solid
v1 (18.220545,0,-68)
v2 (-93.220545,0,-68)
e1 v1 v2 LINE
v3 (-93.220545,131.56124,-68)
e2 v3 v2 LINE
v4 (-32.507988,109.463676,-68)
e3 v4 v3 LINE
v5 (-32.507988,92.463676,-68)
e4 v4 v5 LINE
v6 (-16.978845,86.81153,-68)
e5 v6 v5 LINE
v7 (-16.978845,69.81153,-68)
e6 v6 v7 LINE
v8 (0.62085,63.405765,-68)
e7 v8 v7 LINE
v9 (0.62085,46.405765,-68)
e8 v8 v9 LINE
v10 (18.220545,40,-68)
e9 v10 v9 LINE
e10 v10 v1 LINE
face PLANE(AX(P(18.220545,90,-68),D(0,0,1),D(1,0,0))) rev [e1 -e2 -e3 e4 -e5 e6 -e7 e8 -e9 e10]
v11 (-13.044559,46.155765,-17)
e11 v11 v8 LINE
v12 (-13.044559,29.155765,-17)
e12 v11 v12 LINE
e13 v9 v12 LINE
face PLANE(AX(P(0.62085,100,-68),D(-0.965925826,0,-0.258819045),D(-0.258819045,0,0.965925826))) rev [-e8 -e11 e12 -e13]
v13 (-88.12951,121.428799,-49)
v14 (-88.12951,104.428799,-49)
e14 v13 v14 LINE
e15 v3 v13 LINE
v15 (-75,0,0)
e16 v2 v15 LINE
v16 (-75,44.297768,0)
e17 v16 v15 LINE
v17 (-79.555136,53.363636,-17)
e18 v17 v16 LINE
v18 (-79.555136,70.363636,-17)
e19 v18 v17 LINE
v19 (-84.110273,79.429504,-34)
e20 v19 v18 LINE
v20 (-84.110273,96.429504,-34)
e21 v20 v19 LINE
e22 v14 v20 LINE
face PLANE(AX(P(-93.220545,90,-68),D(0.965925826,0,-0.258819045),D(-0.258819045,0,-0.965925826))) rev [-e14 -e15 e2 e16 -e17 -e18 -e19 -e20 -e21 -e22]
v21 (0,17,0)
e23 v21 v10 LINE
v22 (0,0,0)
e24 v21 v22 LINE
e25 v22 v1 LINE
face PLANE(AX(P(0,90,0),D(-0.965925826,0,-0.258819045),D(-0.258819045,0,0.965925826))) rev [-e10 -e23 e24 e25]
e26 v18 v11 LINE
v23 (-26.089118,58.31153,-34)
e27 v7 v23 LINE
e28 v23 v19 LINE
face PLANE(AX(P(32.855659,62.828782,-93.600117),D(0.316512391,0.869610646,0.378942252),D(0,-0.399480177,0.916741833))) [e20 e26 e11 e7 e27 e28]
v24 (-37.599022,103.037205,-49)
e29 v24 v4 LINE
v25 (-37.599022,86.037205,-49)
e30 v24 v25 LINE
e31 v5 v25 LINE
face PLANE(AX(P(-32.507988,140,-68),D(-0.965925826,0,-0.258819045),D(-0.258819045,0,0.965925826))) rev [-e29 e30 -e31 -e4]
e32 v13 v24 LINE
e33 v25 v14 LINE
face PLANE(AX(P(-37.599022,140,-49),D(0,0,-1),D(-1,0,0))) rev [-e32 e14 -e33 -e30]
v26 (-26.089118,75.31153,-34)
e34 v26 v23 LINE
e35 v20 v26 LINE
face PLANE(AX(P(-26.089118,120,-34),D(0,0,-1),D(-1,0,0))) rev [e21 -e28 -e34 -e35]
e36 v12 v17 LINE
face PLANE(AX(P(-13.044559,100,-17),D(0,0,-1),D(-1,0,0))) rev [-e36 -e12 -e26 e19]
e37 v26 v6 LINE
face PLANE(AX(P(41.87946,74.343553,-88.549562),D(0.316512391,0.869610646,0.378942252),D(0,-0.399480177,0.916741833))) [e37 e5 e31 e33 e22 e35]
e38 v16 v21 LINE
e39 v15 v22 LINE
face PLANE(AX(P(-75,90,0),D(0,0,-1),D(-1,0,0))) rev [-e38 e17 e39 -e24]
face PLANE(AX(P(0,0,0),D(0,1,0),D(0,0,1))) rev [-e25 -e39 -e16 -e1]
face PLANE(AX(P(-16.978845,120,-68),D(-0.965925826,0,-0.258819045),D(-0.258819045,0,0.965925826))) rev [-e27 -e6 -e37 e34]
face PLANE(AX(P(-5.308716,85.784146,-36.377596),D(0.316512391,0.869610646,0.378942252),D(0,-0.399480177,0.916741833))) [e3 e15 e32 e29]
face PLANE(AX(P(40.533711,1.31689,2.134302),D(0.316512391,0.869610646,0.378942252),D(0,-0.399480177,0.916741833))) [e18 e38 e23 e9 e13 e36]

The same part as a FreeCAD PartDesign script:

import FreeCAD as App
import Part
import Sketcher
Q = App.Units.Quantity

doc = App.newDocument("Part")
params = doc.addObject("Spreadsheet::Sheet", "Params")
for row, (alias, value) in enumerate([
    ("sketch1_width", "75 mm"),
    ("pad1_length", "90 mm"),
    ("sketch2_height", "50 mm"),
    ("pocket2_length", "30 mm"),
    ("pad2_length", "100 mm"),
    ("pocket4_length", "20 mm"),
    ("pad3_length", "120 mm"),
    ("pocket6_length", "20 mm"),
    ("pad4_length", "140 mm"),
    ("pocket8_length", "10 mm"),
], start=1):
    params.set(f"A{row}", alias)
    params.set(f"B{row}", "=" + value)
    params.setAlias(f"B{row}", alias)

body = doc.addObject("PartDesign::Body", "Body")

# Sketch on XZ plane
sketch1 = body.newObject("Sketcher::SketchObject", "Sketch")
sketch1.AttachmentSupport = (doc.getObject("XZ_Plane"), [""])
sketch1.MapMode = "FlatFace"
sketch1.addGeometry([
    Part.LineSegment(App.Vector(0, 0, 0), App.Vector(18, -68, 0)),
    Part.LineSegment(App.Vector(18, -68, 0), App.Vector(-93, -68, 0)),
    Part.LineSegment(App.Vector(-93, -68, 0), App.Vector(-75, 0, 0)),
    Part.LineSegment(App.Vector(-75, 0, 0), App.Vector(0, 0, 0)),
], False)
sketch1.addConstraint([
    Sketcher.Constraint("Coincident", 0, 2, 1, 1),
    Sketcher.Constraint("Coincident", 1, 2, 2, 1),
    Sketcher.Constraint("Coincident", 2, 2, 3, 1),
    Sketcher.Constraint("Coincident", 3, 2, 0, 1),
    Sketcher.Constraint("Horizontal", 1),
    Sketcher.Constraint("Horizontal", 3),
    Sketcher.Constraint("Coincident", 3, 2, -1, 1),
    Sketcher.Constraint("Equal", 0, 2),
    Sketcher.Constraint("DistanceX", 3, 1, 3, 2, 75.0),
    Sketcher.Constraint("Angle", 0, Q("-75 deg")),
    Sketcher.Constraint("DistanceY", 0, 2, -1, 1, 68.0),
])
sketch1.setExpression("Constraints[8]", "Params.sketch1_width")
pad1 = body.newObject("PartDesign::Pad", "Pad")
pad1.Profile = sketch1
pad1.setExpression("Length", "Params.pad1_length")
pad1.Reversed = True

# Sketch on XY plane
sketch2 = body.newObject("Sketcher::SketchObject", "Sketch001")
sketch2.AttachmentSupport = (doc.getObject("XY_Plane"), [""])
sketch2.MapMode = "FlatFace"
sketch2.AttachmentOffset = App.Placement(App.Vector(0, 0, -68), App.Rotation())
sketch2.addGeometry([
    Part.LineSegment(App.Vector(18, 40, 0), App.Vector(-93, 81, 0)),
    Part.LineSegment(App.Vector(-93, 81, 0), App.Vector(-93, 90, 0)),
    Part.LineSegment(App.Vector(-93, 90, 0), App.Vector(18, 90, 0)),
    Part.LineSegment(App.Vector(18, 90, 0), App.Vector(18, 40, 0)),
], False)
sketch2.addConstraint([
    Sketcher.Constraint("Coincident", 0, 2, 1, 1),
    Sketcher.Constraint("Coincident", 1, 2, 2, 1),
    Sketcher.Constraint("Coincident", 2, 2, 3, 1),
    Sketcher.Constraint("Coincident", 3, 2, 0, 1),
    Sketcher.Constraint("Vertical", 1),
    Sketcher.Constraint("Horizontal", 2),
    Sketcher.Constraint("Vertical", 3),
    Sketcher.Constraint("DistanceY", 3, 2, 3, 1, 50.0),
    Sketcher.Constraint("Angle", 0, Q("160 deg")),
    Sketcher.Constraint("DistanceY", -1, 1, 1, 2, 90.0),
    Sketcher.Constraint("DistanceX", 2, 1, 2, 2, 111.44109),
    Sketcher.Constraint("DistanceX", 0, 2, -1, 1, 93.220545),
])
sketch2.setExpression("Constraints[7]", "Params.sketch2_height")
pocket1 = body.newObject("PartDesign::Pocket", "Pocket")
pocket1.Profile = sketch2
pocket1.Type = "ThroughAll"
pocket1.Reversed = True

# Sketch on an angled plane
sketch3 = body.newObject("Sketcher::SketchObject", "Sketch002")
sketch3.Placement = App.Placement(App.Vector(4.679123, 12.855785, 5.602048), App.Rotation(App.Vector(-0.948588376, 0.290160149, 0.126440426), App.Vector(0, -0.399480177, 0.916741833), App.Vector(0.316512391, 0.869610646, 0.378942252), "ZXY"))
sketch3.addGeometry([
    Part.LineSegment(App.Vector(-38, 1, 0), App.Vector(-38, -100, 0)),
    Part.LineSegment(App.Vector(-38, -100, 0), App.Vector(121, -100, 0)),
    Part.LineSegment(App.Vector(121, -100, 0), App.Vector(121, 1, 0)),
    Part.LineSegment(App.Vector(121, 1, 0), App.Vector(-38, 1, 0)),
], False)
sketch3.addConstraint([
    Sketcher.Constraint("Coincident", 0, 2, 1, 1),
    Sketcher.Constraint("Coincident", 1, 2, 2, 1),
    Sketcher.Constraint("Coincident", 2, 2, 3, 1),
    Sketcher.Constraint("Coincident", 3, 2, 0, 1),
    Sketcher.Constraint("Vertical", 0),
    Sketcher.Constraint("Horizontal", 1),
    Sketcher.Constraint("Vertical", 2),
    Sketcher.Constraint("Horizontal", 3),
    Sketcher.Constraint("DistanceY", 0, 2, 0, 1, 101.139552),
    Sketcher.Constraint("DistanceX", 1, 1, 1, 2, 158.762086),
    Sketcher.Constraint("DistanceY", 0, 2, -1, 1, 99.709019),
    Sketcher.Constraint("DistanceX", -1, 1, 1, 2, 120.96425),
])
pocket2 = body.newObject("PartDesign::Pocket", "Pocket001")
pocket2.Profile = sketch3
pocket2.setExpression("Length", "Params.pocket2_length")
pocket2.Reversed = True

# Sketch on XZ plane
sketch4 = body.newObject("Sketcher::SketchObject", "Sketch003")
sketch4.AttachmentSupport = (doc.getObject("XZ_Plane"), [""])
sketch4.MapMode = "FlatFace"
sketch4.addGeometry([
    Part.LineSegment(App.Vector(-13, -17, 0), App.Vector(1, -68, 0)),
    Part.LineSegment(App.Vector(1, -68, 0), App.Vector(-93, -68, 0)),
    Part.LineSegment(App.Vector(-93, -68, 0), App.Vector(-80, -17, 0)),
    Part.LineSegment(App.Vector(-80, -17, 0), App.Vector(-13, -17, 0)),
], False)
sketch4.addConstraint([
    Sketcher.Constraint("Coincident", 0, 2, 1, 1),
    Sketcher.Constraint("Coincident", 1, 2, 2, 1),
    Sketcher.Constraint("Coincident", 2, 2, 3, 1),
    Sketcher.Constraint("Coincident", 3, 2, 0, 1),
    Sketcher.Constraint("Horizontal", 1),
    Sketcher.Constraint("Horizontal", 3),
    Sketcher.Constraint("Equal", 0, 2),
    Sketcher.Constraint("Angle", 0, Q("-75 deg")),
    Sketcher.Constraint("DistanceY", 0, 2, -1, 1, 68.0),
    Sketcher.Constraint("DistanceY", 2, 2, -1, 1, 17.0),
    Sketcher.Constraint("DistanceX", 1, 2, 1, 1, 93.841395),
    Sketcher.Constraint("DistanceX", -1, 1, 0, 2, 0.62085),
])
pad2 = body.newObject("PartDesign::Pad", "Pad001")
pad2.Profile = sketch4
pad2.setExpression("Length", "Params.pad2_length")
pad2.Reversed = True

# Sketch on XY plane
sketch5 = body.newObject("Sketcher::SketchObject", "Sketch004")
sketch5.AttachmentSupport = (doc.getObject("XY_Plane"), [""])
sketch5.MapMode = "FlatFace"
sketch5.AttachmentOffset = App.Placement(App.Vector(0, 0, -68), App.Rotation())
sketch5.addGeometry([
    Part.LineSegment(App.Vector(0.6, 63.4, 0), App.Vector(-93.2, 97.6, 0)),
    Part.LineSegment(App.Vector(-93.2, 97.6, 0), App.Vector(-93.2, 100, 0)),
    Part.LineSegment(App.Vector(-93.2, 100, 0), App.Vector(0.6, 100, 0)),
    Part.LineSegment(App.Vector(0.6, 100, 0), App.Vector(0.6, 63.4, 0)),
], False)
sketch5.addConstraint([
    Sketcher.Constraint("Coincident", 0, 2, 1, 1),
    Sketcher.Constraint("Coincident", 1, 2, 2, 1),
    Sketcher.Constraint("Coincident", 2, 2, 3, 1),
    Sketcher.Constraint("Coincident", 3, 2, 0, 1),
    Sketcher.Constraint("Vertical", 1),
    Sketcher.Constraint("Horizontal", 2),
    Sketcher.Constraint("Vertical", 3),
    Sketcher.Constraint("Angle", 0, Q("160 deg")),
    Sketcher.Constraint("DistanceY", -1, 1, 1, 2, 100.0),
    Sketcher.Constraint("DistanceY", 1, 1, 1, 2, 2.43876),
    Sketcher.Constraint("DistanceX", 2, 1, 2, 2, 93.841395),
    Sketcher.Constraint("DistanceX", -1, 1, 2, 2, 0.62085),
])
pocket3 = body.newObject("PartDesign::Pocket", "Pocket002")
pocket3.Profile = sketch5
pocket3.Type = "ThroughAll"
pocket3.Reversed = True

# Sketch on an angled plane
sketch6 = body.newObject("Sketcher::SketchObject", "Sketch005")
sketch6.Placement = App.Placement(App.Vector(9.358247, 25.711571, 11.204095), App.Rotation(App.Vector(-0.948588376, 0.290160149, 0.126440426), App.Vector(0, -0.399480177, 0.916741833), App.Vector(0.316512391, 0.869610646, 0.378942252), "ZXY"))
sketch6.addGeometry([
    Part.LineSegment(App.Vector(-25, -21, 0), App.Vector(-25, -111, 0)),
    Part.LineSegment(App.Vector(-25, -111, 0), App.Vector(118, -111, 0)),
    Part.LineSegment(App.Vector(118, -111, 0), App.Vector(118, -21, 0)),
    Part.LineSegment(App.Vector(118, -21, 0), App.Vector(-25, -21, 0)),
], False)
sketch6.addConstraint([
    Sketcher.Constraint("Coincident", 0, 2, 1, 1),
    Sketcher.Constraint("Coincident", 1, 2, 2, 1),
    Sketcher.Constraint("Coincident", 2, 2, 3, 1),
    Sketcher.Constraint("Coincident", 3, 2, 0, 1),
    Sketcher.Constraint("Vertical", 0),
    Sketcher.Constraint("Horizontal", 1),
    Sketcher.Constraint("Vertical", 2),
    Sketcher.Constraint("Horizontal", 3),
    Sketcher.Constraint("DistanceX", 1, 1, 1, 2, 142.373578),
    Sketcher.Constraint("DistanceY", 0, 2, 0, 1, 89.670116),
    Sketcher.Constraint("DistanceX", -1, 1, 1, 2, 117.602651),
    Sketcher.Constraint("DistanceY", 2, 2, -1, 1, 21.23588),
])
pocket4 = body.newObject("PartDesign::Pocket", "Pocket003")
pocket4.Profile = sketch6
pocket4.setExpression("Length", "Params.pocket4_length")
pocket4.Reversed = True

# Sketch on XZ plane
sketch7 = body.newObject("Sketcher::SketchObject", "Sketch006")
sketch7.AttachmentSupport = (doc.getObject("XZ_Plane"), [""])
sketch7.MapMode = "FlatFace"
sketch7.addGeometry([
    Part.LineSegment(App.Vector(-26, -34, 0), App.Vector(-17, -68, 0)),
    Part.LineSegment(App.Vector(-17, -68, 0), App.Vector(-93, -68, 0)),
    Part.LineSegment(App.Vector(-93, -68, 0), App.Vector(-84, -34, 0)),
    Part.LineSegment(App.Vector(-84, -34, 0), App.Vector(-26, -34, 0)),
], False)
sketch7.addConstraint([
    Sketcher.Constraint("Coincident", 0, 2, 1, 1),
    Sketcher.Constraint("Coincident", 1, 2, 2, 1),
    Sketcher.Constraint("Coincident", 2, 2, 3, 1),
    Sketcher.Constraint("Coincident", 3, 2, 0, 1),
    Sketcher.Constraint("Horizontal", 1),
    Sketcher.Constraint("Horizontal", 3),
    Sketcher.Constraint("Equal", 0, 2),
    Sketcher.Constraint("Angle", 0, Q("-75 deg")),
    Sketcher.Constraint("DistanceY", 0, 2, -1, 1, 68.0),
    Sketcher.Constraint("DistanceY", 2, 2, -1, 1, 34.0),
    Sketcher.Constraint("DistanceX", 1, 2, 1, 1, 76.2417),
    Sketcher.Constraint("DistanceX", 0, 2, -1, 1, 16.978845),
])
pad3 = body.newObject("PartDesign::Pad", "Pad002")
pad3.Profile = sketch7
pad3.setExpression("Length", "Params.pad3_length")
pad3.Reversed = True

# Sketch on XY plane
sketch8 = body.newObject("Sketcher::SketchObject", "Sketch007")
sketch8.AttachmentSupport = (doc.getObject("XY_Plane"), [""])
sketch8.MapMode = "FlatFace"
sketch8.AttachmentOffset = App.Placement(App.Vector(0, 0, -68), App.Rotation())
sketch8.addGeometry([
    Part.LineSegment(App.Vector(-17, 87, 0), App.Vector(-93, 115, 0)),
    Part.LineSegment(App.Vector(-93, 115, 0), App.Vector(-93, 120, 0)),
    Part.LineSegment(App.Vector(-93, 120, 0), App.Vector(-17, 120, 0)),
    Part.LineSegment(App.Vector(-17, 120, 0), App.Vector(-17, 87, 0)),
], False)
sketch8.addConstraint([
    Sketcher.Constraint("Coincident", 0, 2, 1, 1),
    Sketcher.Constraint("Coincident", 1, 2, 2, 1),
    Sketcher.Constraint("Coincident", 2, 2, 3, 1),
    Sketcher.Constraint("Coincident", 3, 2, 0, 1),
    Sketcher.Constraint("Vertical", 1),
    Sketcher.Constraint("Horizontal", 2),
    Sketcher.Constraint("Vertical", 3),
    Sketcher.Constraint("Angle", 0, Q("160 deg")),
    Sketcher.Constraint("DistanceY", -1, 1, 1, 2, 120.0),
    Sketcher.Constraint("DistanceX", 2, 1, 2, 2, 76.2417),
    Sketcher.Constraint("DistanceY", 1, 1, 1, 2, 5.43876),
    Sketcher.Constraint("DistanceX", 0, 2, -1, 1, 93.220545),
])
pocket5 = body.newObject("PartDesign::Pocket", "Pocket004")
pocket5.Profile = sketch8
pocket5.Type = "ThroughAll"
pocket5.Reversed = True

# Sketch on an angled plane
sketch9 = body.newObject("Sketcher::SketchObject", "Sketch008")
sketch9.Placement = App.Placement(App.Vector(14.03737, 38.567356, 16.806143), App.Rotation(App.Vector(-0.948588376, 0.290160149, 0.126440426), App.Vector(0, -0.399480177, 0.916741833), App.Vector(0.316512391, 0.869610646, 0.378942252), "ZXY"))
sketch9.addGeometry([
    Part.LineSegment(App.Vector(-29, -22, 0), App.Vector(-29, -111, 0)),
    Part.LineSegment(App.Vector(-29, -111, 0), App.Vector(119, -111, 0)),
    Part.LineSegment(App.Vector(119, -111, 0), App.Vector(119, -22, 0)),
    Part.LineSegment(App.Vector(119, -22, 0), App.Vector(-29, -22, 0)),
], False)
sketch9.addConstraint([
    Sketcher.Constraint("Coincident", 0, 2, 1, 1),
    Sketcher.Constraint("Coincident", 1, 2, 2, 1),
    Sketcher.Constraint("Coincident", 2, 2, 3, 1),
    Sketcher.Constraint("Coincident", 3, 2, 0, 1),
    Sketcher.Constraint("Vertical", 0),
    Sketcher.Constraint("Horizontal", 1),
    Sketcher.Constraint("Vertical", 2),
    Sketcher.Constraint("Horizontal", 3),
    Sketcher.Constraint("DistanceX", 1, 1, 1, 2, 148.763156),
    Sketcher.Constraint("DistanceY", 0, 2, 0, 1, 89.075175),
    Sketcher.Constraint("DistanceX", -1, 1, 1, 2, 119.412079),
    Sketcher.Constraint("DistanceY", 2, 2, -1, 1, 21.800688),
])
pocket6 = body.newObject("PartDesign::Pocket", "Pocket005")
pocket6.Profile = sketch9
pocket6.setExpression("Length", "Params.pocket6_length")
pocket6.Reversed = True

# Sketch on XZ plane
sketch10 = body.newObject("Sketcher::SketchObject", "Sketch009")
sketch10.AttachmentSupport = (doc.getObject("XZ_Plane"), [""])
sketch10.MapMode = "FlatFace"
sketch10.addGeometry([
    Part.LineSegment(App.Vector(-33, -68, 0), App.Vector(-93, -68, 0)),
    Part.LineSegment(App.Vector(-93, -68, 0), App.Vector(-88, -49, 0)),
    Part.LineSegment(App.Vector(-88, -49, 0), App.Vector(-38, -49, 0)),
    Part.LineSegment(App.Vector(-38, -49, 0), App.Vector(-33, -68, 0)),
], False)
sketch10.addConstraint([
    Sketcher.Constraint("Coincident", 0, 2, 1, 1),
    Sketcher.Constraint("Coincident", 1, 2, 2, 1),
    Sketcher.Constraint("Coincident", 2, 2, 3, 1),
    Sketcher.Constraint("Coincident", 3, 2, 0, 1),
    Sketcher.Constraint("Horizontal", 0),
    Sketcher.Constraint("Horizontal", 2),
    Sketcher.Constraint("Equal", 1, 3),
    Sketcher.Constraint("Angle", 1, Q("75 deg")),
    Sketcher.Constraint("DistanceY", 0, 2, -1, 1, 68.0),
    Sketcher.Constraint("DistanceY", 1, 2, -1, 1, 49.0),
    Sketcher.Constraint("DistanceX", 2, 1, 2, 2, 50.530488),
    Sketcher.Constraint("DistanceX", 1, 2, -1, 1, 88.12951),
])
pad4 = body.newObject("PartDesign::Pad", "Pad003")
pad4.Profile = sketch10
pad4.setExpression("Length", "Params.pad4_length")
pad4.Reversed = True

# Sketch on XY plane
sketch11 = body.newObject("Sketcher::SketchObject", "Sketch010")
sketch11.AttachmentSupport = (doc.getObject("XY_Plane"), [""])
sketch11.MapMode = "FlatFace"
sketch11.AttachmentOffset = App.Placement(App.Vector(0, 0, -68), App.Rotation())
sketch11.addGeometry([
    Part.LineSegment(App.Vector(-33, 109, 0), App.Vector(-93, 132, 0)),
    Part.LineSegment(App.Vector(-93, 132, 0), App.Vector(-93, 140, 0)),
    Part.LineSegment(App.Vector(-93, 140, 0), App.Vector(-33, 140, 0)),
    Part.LineSegment(App.Vector(-33, 140, 0), App.Vector(-33, 109, 0)),
], False)
sketch11.addConstraint([
    Sketcher.Constraint("Coincident", 0, 2, 1, 1),
    Sketcher.Constraint("Coincident", 1, 2, 2, 1),
    Sketcher.Constraint("Coincident", 2, 2, 3, 1),
    Sketcher.Constraint("Coincident", 3, 2, 0, 1),
    Sketcher.Constraint("Vertical", 1),
    Sketcher.Constraint("Horizontal", 2),
    Sketcher.Constraint("Vertical", 3),
    Sketcher.Constraint("Angle", 0, Q("160 deg")),
    Sketcher.Constraint("DistanceY", -1, 1, 1, 2, 140.0),
    Sketcher.Constraint("DistanceY", 1, 1, 1, 2, 8.43876),
    Sketcher.Constraint("DistanceX", 2, 1, 2, 2, 60.712557),
    Sketcher.Constraint("DistanceX", 0, 2, -1, 1, 93.220545),
])
pocket7 = body.newObject("PartDesign::Pocket", "Pocket006")
pocket7.Profile = sketch11
pocket7.Type = "ThroughAll"
pocket7.Reversed = True

# Sketch on an angled plane
sketch12 = body.newObject("Sketcher::SketchObject", "Sketch011")
sketch12.Placement = App.Placement(App.Vector(18.716493, 51.423142, 22.408191), App.Rotation(App.Vector(-0.948588376, 0.290160149, 0.126440426), App.Vector(0, -0.399480177, 0.916741833), App.Vector(0.316512391, 0.869610646, 0.378942252), "ZXY"))
sketch12.addGeometry([
    Part.LineSegment(App.Vector(25, -68, 0), App.Vector(25, -120, 0)),
    Part.LineSegment(App.Vector(25, -120, 0), App.Vector(133, -120, 0)),
    Part.LineSegment(App.Vector(133, -120, 0), App.Vector(133, -68, 0)),
    Part.LineSegment(App.Vector(133, -68, 0), App.Vector(25, -68, 0)),
], False)
sketch12.addConstraint([
    Sketcher.Constraint("Coincident", 0, 2, 1, 1),
    Sketcher.Constraint("Coincident", 1, 2, 2, 1),
    Sketcher.Constraint("Coincident", 2, 2, 3, 1),
    Sketcher.Constraint("Coincident", 3, 2, 0, 1),
    Sketcher.Constraint("Vertical", 0),
    Sketcher.Constraint("Horizontal", 1),
    Sketcher.Constraint("Vertical", 2),
    Sketcher.Constraint("Horizontal", 3),
    Sketcher.Constraint("DistanceX", 1, 1, 1, 2, 108.093049),
    Sketcher.Constraint("DistanceY", 0, 2, 0, 1, 52.64069),
    Sketcher.Constraint("DistanceY", 0, 2, -1, 1, 120.25862),
    Sketcher.Constraint("DistanceX", -1, 1, 0, 2, 25.327328),
])
pocket8 = body.newObject("PartDesign::Pocket", "Pocket007")
pocket8.Profile = sketch12
pocket8.setExpression("Length", "Params.pocket8_length")
pocket8.Reversed = True

doc.recompute()
